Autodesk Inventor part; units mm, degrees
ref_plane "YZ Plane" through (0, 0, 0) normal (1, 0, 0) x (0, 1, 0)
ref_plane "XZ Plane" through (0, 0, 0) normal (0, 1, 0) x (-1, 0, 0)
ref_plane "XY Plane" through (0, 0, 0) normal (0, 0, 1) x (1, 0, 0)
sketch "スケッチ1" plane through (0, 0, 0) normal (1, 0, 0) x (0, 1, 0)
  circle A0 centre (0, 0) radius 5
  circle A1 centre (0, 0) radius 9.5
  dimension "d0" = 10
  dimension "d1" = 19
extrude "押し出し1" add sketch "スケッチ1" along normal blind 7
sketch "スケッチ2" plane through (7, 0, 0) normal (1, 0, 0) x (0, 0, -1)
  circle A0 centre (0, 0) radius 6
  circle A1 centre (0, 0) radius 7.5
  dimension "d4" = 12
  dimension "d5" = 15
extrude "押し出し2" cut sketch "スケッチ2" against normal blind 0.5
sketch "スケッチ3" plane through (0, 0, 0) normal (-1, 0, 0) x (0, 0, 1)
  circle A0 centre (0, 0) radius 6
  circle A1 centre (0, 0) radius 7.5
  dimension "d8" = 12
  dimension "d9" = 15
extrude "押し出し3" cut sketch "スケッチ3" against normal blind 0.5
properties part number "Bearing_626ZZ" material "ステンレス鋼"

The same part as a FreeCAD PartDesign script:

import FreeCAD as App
import Part
import Sketcher
Q = App.Units.Quantity

doc = App.newDocument("Part")
body = doc.addObject("PartDesign::Body", "Body")

# Sketch on YZ plane
sketch1 = body.newObject("Sketcher::SketchObject", "Sketch")
sketch1.AttachmentSupport = (doc.getObject("YZ_Plane"), [""])
sketch1.MapMode = "FlatFace"
sketch1.addGeometry([
    Part.Circle(App.Vector(0, 0, 0), App.Vector(0, 0, 1), 10),
    Part.Circle(App.Vector(0, 0, 0), App.Vector(0, 0, 1), 5),
], False)
sketch1.addConstraint([
    Sketcher.Constraint("Coincident", 0, 3, -1, 1),
    Sketcher.Constraint("Coincident", 1, 3, -1, 1),
    Sketcher.Constraint("Diameter", 0, Q("19 mm")),
    Sketcher.Constraint("Diameter", 1, Q("10 mm")),
])
pad1 = body.newObject("PartDesign::Pad", "Pad")
pad1.Profile = sketch1
pad1.Length = 7

# Sketch on YZ plane
sketch2 = body.newObject("Sketcher::SketchObject", "Sketch001")
sketch2.AttachmentSupport = (doc.getObject("YZ_Plane"), [""])
sketch2.MapMode = "FlatFace"
sketch2.AttachmentOffset = App.Placement(App.Vector(0, 0, 7), App.Rotation())
sketch2.addGeometry([
    Part.Circle(App.Vector(0, 0, 0), App.Vector(0, 0, 1), 8),
    Part.Circle(App.Vector(0, 0, 0), App.Vector(0, 0, 1), 6),
], False)
sketch2.addConstraint([
    Sketcher.Constraint("Coincident", 0, 3, -1, 1),
    Sketcher.Constraint("Coincident", 1, 3, -1, 1),
    Sketcher.Constraint("Diameter", 0, Q("15 mm")),
    Sketcher.Constraint("Diameter", 1, Q("12 mm")),
])
pocket1 = body.newObject("PartDesign::Pocket", "Pocket")
pocket1.Profile = sketch2
pocket1.Length = 0.5

# Sketch on YZ plane
sketch3 = body.newObject("Sketcher::SketchObject", "Sketch002")
sketch3.AttachmentSupport = (doc.getObject("YZ_Plane"), [""])
sketch3.MapMode = "FlatFace"
sketch3.addGeometry([
    Part.Circle(App.Vector(0, 0, 0), App.Vector(0, 0, 1), 8),
    Part.Circle(App.Vector(0, 0, 0), App.Vector(0, 0, 1), 6),
], False)
sketch3.addConstraint([
    Sketcher.Constraint("Coincident", 0, 3, -1, 1),
    Sketcher.Constraint("Coincident", 1, 3, -1, 1),
    Sketcher.Constraint("Diameter", 0, Q("15 mm")),
    Sketcher.Constraint("Diameter", 1, Q("12 mm")),
])
pocket2 = body.newObject("PartDesign::Pocket", "Pocket001")
pocket2.Profile = sketch3
pocket2.Length = 0.5
pocket2.Reversed = True

doc.recompute()
